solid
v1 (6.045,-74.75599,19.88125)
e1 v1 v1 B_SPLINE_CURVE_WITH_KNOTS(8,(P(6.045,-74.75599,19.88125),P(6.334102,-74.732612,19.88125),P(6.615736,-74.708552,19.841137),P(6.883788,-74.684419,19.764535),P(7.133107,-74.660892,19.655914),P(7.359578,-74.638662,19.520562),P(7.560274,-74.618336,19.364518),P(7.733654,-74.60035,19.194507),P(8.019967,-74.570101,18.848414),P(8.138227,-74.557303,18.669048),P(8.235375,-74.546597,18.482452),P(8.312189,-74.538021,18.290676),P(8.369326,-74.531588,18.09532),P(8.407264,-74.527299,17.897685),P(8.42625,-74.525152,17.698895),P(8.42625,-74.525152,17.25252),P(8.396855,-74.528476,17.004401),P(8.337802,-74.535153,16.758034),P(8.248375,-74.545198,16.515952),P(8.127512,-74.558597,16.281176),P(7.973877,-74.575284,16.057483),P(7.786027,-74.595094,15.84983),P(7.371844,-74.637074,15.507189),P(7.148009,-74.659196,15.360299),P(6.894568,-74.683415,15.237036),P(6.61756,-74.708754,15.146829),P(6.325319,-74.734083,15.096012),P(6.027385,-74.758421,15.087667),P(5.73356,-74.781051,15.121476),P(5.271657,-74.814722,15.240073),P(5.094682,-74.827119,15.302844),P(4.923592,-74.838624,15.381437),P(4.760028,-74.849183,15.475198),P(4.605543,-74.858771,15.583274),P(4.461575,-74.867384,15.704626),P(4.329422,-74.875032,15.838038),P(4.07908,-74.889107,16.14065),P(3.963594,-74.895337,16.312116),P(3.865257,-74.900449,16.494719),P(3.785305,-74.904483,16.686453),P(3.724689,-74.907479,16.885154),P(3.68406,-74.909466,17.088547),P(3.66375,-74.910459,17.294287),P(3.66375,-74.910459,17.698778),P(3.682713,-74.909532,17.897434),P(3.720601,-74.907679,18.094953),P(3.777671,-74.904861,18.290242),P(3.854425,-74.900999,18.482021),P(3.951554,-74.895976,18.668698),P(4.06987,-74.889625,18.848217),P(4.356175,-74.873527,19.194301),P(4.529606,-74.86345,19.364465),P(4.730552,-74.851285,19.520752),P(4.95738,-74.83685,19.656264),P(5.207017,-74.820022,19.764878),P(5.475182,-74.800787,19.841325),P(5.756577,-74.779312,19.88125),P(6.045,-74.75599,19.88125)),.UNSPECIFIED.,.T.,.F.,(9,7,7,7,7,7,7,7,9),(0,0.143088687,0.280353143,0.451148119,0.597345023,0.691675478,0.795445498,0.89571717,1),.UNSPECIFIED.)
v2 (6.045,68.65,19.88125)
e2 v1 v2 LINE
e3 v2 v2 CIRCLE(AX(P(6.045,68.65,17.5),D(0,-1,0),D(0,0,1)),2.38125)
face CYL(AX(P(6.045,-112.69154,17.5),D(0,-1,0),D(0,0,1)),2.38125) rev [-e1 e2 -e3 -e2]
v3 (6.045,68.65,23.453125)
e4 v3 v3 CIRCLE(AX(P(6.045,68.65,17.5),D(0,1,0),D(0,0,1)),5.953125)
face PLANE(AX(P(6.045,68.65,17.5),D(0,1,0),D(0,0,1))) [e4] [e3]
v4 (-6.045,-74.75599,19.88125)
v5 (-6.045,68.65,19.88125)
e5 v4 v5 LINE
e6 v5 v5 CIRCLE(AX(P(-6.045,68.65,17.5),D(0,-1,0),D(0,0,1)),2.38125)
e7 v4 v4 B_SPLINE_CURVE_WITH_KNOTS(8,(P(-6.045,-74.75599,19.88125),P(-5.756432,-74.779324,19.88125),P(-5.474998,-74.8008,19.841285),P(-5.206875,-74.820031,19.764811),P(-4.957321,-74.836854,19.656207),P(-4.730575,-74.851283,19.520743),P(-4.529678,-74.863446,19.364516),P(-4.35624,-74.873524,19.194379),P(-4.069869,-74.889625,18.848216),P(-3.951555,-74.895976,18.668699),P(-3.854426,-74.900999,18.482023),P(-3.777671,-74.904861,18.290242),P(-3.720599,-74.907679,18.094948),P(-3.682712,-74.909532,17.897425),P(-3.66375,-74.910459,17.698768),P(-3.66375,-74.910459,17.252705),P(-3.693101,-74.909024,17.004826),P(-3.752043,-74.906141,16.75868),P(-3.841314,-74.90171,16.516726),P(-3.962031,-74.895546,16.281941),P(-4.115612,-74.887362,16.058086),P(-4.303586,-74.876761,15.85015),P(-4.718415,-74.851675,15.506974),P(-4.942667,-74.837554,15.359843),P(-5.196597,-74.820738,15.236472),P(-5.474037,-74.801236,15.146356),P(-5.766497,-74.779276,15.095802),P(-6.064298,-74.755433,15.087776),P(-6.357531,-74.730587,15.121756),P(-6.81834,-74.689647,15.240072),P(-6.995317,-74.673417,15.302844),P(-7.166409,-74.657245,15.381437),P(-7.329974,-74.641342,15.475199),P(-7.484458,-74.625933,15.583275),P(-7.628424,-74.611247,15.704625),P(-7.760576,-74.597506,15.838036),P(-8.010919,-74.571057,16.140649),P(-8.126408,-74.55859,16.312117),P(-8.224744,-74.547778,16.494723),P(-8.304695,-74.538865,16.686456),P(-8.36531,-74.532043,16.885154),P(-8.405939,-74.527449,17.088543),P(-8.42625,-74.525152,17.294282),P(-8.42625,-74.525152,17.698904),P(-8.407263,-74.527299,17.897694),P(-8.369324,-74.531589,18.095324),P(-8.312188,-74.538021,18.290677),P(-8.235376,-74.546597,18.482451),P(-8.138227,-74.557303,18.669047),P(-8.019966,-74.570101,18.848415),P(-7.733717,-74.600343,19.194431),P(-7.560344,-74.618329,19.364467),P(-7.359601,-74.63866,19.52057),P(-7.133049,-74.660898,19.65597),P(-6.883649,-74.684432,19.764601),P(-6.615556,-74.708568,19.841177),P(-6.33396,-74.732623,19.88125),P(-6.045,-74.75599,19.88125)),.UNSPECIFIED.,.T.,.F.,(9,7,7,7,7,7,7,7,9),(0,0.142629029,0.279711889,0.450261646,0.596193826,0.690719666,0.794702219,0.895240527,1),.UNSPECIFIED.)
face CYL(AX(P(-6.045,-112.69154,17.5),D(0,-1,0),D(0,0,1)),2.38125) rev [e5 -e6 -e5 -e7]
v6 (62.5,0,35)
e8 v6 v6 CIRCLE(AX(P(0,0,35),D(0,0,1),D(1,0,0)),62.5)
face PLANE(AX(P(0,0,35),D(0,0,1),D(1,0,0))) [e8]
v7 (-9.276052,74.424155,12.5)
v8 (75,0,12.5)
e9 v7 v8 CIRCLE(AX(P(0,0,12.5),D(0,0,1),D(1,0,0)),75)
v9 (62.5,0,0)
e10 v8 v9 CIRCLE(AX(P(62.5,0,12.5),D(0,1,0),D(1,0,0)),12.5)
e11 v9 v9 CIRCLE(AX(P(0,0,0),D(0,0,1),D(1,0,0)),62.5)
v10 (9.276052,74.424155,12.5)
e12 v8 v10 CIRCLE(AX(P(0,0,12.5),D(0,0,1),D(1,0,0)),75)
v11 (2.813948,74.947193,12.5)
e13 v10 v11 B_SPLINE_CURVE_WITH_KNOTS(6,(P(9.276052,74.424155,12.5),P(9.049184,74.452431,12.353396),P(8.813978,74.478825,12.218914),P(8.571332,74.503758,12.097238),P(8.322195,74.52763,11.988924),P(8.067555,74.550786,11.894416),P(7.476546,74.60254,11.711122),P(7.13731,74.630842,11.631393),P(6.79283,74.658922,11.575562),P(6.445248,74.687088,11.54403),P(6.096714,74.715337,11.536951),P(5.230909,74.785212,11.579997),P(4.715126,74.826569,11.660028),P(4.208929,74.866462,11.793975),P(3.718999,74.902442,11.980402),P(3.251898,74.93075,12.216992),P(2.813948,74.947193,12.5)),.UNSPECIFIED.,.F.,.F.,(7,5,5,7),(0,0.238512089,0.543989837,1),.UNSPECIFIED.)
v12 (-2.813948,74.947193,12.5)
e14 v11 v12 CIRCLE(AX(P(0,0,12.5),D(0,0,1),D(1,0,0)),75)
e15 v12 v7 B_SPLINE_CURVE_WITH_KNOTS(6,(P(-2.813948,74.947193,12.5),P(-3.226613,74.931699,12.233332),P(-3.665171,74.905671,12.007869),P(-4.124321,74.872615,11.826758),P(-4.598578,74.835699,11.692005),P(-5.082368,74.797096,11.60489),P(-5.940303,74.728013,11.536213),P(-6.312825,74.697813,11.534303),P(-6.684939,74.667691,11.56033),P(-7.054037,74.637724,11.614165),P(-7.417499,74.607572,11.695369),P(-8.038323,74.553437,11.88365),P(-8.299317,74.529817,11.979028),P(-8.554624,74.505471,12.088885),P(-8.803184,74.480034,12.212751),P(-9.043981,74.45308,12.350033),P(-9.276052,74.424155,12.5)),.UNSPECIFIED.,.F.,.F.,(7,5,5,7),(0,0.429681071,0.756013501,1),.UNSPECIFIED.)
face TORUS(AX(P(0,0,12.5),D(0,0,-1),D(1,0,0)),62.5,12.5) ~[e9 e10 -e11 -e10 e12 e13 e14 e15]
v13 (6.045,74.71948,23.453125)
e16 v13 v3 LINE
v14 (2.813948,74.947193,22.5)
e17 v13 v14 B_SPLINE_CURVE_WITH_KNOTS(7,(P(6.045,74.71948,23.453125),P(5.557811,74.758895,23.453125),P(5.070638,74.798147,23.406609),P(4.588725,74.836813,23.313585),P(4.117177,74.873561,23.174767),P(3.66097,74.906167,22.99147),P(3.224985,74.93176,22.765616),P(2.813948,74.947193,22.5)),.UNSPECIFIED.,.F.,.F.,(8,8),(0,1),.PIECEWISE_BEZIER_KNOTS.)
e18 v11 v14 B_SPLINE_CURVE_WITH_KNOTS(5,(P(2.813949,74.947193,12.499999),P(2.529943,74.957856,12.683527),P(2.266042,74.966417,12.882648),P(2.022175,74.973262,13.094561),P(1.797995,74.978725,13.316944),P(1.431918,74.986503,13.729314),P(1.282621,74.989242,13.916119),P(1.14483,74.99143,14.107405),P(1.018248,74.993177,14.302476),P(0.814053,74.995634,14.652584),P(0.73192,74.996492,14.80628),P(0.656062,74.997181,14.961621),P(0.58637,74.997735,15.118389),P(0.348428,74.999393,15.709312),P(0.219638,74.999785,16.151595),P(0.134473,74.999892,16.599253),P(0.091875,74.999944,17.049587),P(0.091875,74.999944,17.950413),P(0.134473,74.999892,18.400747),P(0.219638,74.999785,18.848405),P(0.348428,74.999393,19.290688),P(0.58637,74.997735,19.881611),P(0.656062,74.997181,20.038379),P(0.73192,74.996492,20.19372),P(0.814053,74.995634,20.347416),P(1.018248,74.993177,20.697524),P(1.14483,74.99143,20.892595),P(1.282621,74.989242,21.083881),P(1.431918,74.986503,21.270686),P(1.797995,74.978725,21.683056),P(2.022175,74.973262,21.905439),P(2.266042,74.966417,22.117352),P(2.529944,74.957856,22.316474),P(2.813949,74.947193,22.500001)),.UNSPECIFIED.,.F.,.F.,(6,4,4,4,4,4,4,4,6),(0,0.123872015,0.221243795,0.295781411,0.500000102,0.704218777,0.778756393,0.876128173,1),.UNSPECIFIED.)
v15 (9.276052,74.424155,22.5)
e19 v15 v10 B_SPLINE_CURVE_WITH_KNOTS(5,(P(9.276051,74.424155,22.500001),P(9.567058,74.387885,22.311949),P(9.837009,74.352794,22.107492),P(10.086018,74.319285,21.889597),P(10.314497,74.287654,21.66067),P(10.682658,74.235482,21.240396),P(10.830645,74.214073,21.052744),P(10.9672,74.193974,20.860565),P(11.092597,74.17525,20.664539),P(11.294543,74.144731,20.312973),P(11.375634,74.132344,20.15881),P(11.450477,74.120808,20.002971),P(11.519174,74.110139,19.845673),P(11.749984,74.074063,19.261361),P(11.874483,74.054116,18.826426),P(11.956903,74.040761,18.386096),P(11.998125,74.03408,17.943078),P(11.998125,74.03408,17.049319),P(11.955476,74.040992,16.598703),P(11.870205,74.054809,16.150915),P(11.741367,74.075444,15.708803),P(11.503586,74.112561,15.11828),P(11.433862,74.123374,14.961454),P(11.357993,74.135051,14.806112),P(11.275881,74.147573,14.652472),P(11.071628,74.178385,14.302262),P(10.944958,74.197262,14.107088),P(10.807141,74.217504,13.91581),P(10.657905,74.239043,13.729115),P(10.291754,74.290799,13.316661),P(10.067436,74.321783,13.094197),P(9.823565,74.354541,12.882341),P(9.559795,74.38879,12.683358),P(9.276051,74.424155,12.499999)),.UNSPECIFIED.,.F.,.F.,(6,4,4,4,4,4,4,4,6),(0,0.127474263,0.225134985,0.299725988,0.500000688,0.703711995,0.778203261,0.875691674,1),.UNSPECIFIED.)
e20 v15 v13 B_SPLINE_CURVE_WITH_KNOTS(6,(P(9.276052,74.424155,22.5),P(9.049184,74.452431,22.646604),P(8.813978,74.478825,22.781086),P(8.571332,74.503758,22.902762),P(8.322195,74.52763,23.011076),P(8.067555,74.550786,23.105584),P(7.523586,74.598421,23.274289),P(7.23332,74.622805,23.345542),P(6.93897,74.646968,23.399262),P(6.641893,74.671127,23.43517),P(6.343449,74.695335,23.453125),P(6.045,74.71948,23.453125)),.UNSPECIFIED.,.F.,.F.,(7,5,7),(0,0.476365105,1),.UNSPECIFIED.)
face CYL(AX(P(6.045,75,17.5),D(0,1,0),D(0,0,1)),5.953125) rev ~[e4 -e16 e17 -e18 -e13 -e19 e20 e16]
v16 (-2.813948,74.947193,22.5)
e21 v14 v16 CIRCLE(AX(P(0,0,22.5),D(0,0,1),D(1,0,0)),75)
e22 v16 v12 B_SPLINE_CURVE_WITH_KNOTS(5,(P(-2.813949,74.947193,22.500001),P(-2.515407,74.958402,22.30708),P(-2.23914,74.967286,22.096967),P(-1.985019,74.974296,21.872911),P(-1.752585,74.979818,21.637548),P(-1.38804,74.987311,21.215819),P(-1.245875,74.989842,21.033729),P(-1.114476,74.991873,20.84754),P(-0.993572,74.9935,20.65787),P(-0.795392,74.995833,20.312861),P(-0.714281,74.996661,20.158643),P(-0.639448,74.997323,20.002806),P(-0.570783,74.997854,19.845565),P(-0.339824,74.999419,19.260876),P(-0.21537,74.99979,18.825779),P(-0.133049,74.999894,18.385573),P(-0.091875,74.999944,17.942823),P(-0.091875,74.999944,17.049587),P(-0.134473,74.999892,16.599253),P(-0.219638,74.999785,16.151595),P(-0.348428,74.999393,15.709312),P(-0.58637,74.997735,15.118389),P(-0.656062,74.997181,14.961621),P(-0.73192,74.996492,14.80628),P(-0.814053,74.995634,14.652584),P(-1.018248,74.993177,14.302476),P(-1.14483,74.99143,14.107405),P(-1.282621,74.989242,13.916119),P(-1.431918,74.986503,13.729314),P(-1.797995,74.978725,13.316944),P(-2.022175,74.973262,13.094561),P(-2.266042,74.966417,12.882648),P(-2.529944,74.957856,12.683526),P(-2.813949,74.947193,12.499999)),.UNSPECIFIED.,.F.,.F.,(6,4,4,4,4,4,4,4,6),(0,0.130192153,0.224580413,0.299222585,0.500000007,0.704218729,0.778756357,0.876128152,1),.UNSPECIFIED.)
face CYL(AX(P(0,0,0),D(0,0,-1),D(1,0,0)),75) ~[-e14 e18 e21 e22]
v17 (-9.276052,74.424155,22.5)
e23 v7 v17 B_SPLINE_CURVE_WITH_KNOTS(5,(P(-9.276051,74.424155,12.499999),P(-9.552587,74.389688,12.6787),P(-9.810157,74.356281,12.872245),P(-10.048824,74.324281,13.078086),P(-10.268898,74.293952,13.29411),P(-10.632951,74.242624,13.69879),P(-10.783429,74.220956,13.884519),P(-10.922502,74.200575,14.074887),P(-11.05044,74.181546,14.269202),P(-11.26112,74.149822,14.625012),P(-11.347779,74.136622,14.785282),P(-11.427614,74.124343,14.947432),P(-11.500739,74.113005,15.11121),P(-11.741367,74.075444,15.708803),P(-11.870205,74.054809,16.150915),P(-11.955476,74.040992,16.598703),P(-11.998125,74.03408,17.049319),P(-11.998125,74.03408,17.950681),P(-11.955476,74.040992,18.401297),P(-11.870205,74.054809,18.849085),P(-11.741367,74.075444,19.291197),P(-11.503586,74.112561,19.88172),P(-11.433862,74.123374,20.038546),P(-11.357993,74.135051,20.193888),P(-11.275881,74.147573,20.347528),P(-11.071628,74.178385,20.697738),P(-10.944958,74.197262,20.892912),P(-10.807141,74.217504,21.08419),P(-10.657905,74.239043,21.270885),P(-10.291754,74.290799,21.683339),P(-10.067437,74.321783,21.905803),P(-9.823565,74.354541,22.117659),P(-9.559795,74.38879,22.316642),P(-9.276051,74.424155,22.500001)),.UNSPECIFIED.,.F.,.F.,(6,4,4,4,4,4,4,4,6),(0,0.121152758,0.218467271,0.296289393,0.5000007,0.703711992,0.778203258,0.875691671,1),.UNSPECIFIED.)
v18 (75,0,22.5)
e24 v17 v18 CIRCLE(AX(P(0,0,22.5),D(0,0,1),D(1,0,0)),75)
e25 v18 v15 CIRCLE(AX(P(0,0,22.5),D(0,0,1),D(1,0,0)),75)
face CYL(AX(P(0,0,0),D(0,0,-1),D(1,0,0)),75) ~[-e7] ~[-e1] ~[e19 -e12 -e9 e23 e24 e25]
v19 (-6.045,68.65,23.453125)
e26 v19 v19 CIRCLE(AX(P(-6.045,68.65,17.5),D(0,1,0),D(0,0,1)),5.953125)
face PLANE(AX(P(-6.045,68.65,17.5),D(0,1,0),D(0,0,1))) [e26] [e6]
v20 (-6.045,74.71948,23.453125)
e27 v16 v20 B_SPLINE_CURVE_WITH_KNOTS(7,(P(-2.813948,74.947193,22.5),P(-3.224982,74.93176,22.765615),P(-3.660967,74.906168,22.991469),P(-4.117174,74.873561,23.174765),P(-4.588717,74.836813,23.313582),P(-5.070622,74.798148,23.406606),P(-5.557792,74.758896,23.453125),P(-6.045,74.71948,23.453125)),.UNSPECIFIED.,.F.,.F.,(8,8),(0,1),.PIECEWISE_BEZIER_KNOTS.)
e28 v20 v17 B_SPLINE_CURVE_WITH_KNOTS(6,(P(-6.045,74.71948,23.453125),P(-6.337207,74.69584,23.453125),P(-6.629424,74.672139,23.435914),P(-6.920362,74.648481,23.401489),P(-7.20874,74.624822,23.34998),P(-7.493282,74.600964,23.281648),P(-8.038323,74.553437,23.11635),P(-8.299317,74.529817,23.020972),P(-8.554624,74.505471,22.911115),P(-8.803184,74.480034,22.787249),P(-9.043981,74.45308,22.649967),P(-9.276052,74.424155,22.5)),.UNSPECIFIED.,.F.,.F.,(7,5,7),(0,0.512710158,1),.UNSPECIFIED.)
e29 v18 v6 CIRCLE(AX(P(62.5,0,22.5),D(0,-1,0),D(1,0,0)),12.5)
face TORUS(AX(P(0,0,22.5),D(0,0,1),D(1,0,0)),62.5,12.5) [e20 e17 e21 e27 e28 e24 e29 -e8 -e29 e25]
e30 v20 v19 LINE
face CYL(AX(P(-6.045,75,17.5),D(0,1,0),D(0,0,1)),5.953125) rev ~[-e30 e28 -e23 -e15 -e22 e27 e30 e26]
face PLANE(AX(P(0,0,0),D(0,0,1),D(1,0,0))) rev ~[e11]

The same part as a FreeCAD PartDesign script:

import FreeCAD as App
import Part
import Sketcher
from FreeCAD import Vector


def edges_at(feature, points):
    """Names of the edges that pass closest to the given points."""
    edges = feature.Shape.Edges
    near = lambda p: min(range(len(edges)), key=lambda i: edges[i].distToShape(Part.Vertex(*p))[0])
    return sorted({f"Edge{near(p) + 1}" for p in points})

doc = App.newDocument("Part")
body = doc.addObject("PartDesign::Body", "Body")

# Sketch on XY plane
sketch1 = doc.addObject("Sketcher::SketchObject", "Sketch")
body.addObject(sketch1)
sketch1.AttachmentSupport = (doc.XY_Plane, [""])
sketch1.MapMode = "FlatFace"
sketch1.addGeometry(Part.Circle(Vector(0, 0, 0), Vector(0, 0, 1), 75), False)
sketch1.addConstraint([
    Sketcher.Constraint("Coincident", 0, 3, -1, 1),
    Sketcher.Constraint("Diameter", 0, 150.0),
])
pad1 = doc.addObject("PartDesign::Pad", "Pad")
body.addObject(pad1)
pad1.Profile = sketch1
pad1.Length = 35

# Sketch on XZ plane
sketch2 = doc.addObject("Sketcher::SketchObject", "Sketch001")
body.addObject(sketch2)
sketch2.AttachmentSupport = (doc.XZ_Plane, [""])
sketch2.MapMode = "FlatFace"
sketch2.addGeometry([
    Part.Circle(Vector(-6, 17.5, 0), Vector(0, 0, 1), 2.4),
    Part.Circle(Vector(6, 17.5, 0), Vector(0, 0, 1), 2.4),
], False)
sketch2.addConstraint([
    Sketcher.Constraint("Equal", 0, 1),
    Sketcher.Constraint("Symmetric", 0, 3, 1, 3, -2),
    Sketcher.Constraint("Diameter", 0, 4.7625),
    Sketcher.Constraint("DistanceY", -1, 1, 0, 3, 17.5),
    Sketcher.Constraint("DistanceX", 0, 3, 1, 3, 12.09),
])
pocket1 = doc.addObject("PartDesign::Pocket", "Pocket")
body.addObject(pocket1)
pocket1.Profile = sketch2
pocket1.Type = "ThroughAll"
pocket1.Midplane = True
doc.recompute()

fillet = doc.addObject("PartDesign::Fillet", "Fillet")
body.addObject(fillet)
fillet.Base = (pocket1, edges_at(pocket1, [(-75, 0, 0), (-75, 0, 35)]))
fillet.Radius = 12.5

# Sketch on XZ plane
sketch3 = doc.addObject("Sketcher::SketchObject", "Sketch002")
body.addObject(sketch3)
sketch3.AttachmentSupport = (doc.XZ_Plane, [""])
sketch3.MapMode = "FlatFace"
sketch3.AttachmentOffset = App.Placement(Vector(0, 0, -75), App.Rotation())
sketch3.addGeometry([
    Part.Circle(Vector(-6, 18, 0), Vector(0, 0, 1), 6),
    Part.Circle(Vector(6, 18, 0), Vector(0, 0, 1), 6),
], False)
sketch3.addConstraint([
    Sketcher.Constraint("Equal", 0, 1),
    Sketcher.Constraint("Symmetric", 0, 3, 1, 3, -2),
    Sketcher.Constraint("DistanceY", -1, 1, 0, 3, 17.5),
    Sketcher.Constraint("Diameter", 0, 11.90625),
    Sketcher.Constraint("DistanceX", 0, 3, 1, 3, 12.09),
])
pocket2 = doc.addObject("PartDesign::Pocket", "Pocket001")
body.addObject(pocket2)
pocket2.Profile = sketch3
pocket2.Length = 6.35
pocket2.Reversed = True

doc.recompute()
